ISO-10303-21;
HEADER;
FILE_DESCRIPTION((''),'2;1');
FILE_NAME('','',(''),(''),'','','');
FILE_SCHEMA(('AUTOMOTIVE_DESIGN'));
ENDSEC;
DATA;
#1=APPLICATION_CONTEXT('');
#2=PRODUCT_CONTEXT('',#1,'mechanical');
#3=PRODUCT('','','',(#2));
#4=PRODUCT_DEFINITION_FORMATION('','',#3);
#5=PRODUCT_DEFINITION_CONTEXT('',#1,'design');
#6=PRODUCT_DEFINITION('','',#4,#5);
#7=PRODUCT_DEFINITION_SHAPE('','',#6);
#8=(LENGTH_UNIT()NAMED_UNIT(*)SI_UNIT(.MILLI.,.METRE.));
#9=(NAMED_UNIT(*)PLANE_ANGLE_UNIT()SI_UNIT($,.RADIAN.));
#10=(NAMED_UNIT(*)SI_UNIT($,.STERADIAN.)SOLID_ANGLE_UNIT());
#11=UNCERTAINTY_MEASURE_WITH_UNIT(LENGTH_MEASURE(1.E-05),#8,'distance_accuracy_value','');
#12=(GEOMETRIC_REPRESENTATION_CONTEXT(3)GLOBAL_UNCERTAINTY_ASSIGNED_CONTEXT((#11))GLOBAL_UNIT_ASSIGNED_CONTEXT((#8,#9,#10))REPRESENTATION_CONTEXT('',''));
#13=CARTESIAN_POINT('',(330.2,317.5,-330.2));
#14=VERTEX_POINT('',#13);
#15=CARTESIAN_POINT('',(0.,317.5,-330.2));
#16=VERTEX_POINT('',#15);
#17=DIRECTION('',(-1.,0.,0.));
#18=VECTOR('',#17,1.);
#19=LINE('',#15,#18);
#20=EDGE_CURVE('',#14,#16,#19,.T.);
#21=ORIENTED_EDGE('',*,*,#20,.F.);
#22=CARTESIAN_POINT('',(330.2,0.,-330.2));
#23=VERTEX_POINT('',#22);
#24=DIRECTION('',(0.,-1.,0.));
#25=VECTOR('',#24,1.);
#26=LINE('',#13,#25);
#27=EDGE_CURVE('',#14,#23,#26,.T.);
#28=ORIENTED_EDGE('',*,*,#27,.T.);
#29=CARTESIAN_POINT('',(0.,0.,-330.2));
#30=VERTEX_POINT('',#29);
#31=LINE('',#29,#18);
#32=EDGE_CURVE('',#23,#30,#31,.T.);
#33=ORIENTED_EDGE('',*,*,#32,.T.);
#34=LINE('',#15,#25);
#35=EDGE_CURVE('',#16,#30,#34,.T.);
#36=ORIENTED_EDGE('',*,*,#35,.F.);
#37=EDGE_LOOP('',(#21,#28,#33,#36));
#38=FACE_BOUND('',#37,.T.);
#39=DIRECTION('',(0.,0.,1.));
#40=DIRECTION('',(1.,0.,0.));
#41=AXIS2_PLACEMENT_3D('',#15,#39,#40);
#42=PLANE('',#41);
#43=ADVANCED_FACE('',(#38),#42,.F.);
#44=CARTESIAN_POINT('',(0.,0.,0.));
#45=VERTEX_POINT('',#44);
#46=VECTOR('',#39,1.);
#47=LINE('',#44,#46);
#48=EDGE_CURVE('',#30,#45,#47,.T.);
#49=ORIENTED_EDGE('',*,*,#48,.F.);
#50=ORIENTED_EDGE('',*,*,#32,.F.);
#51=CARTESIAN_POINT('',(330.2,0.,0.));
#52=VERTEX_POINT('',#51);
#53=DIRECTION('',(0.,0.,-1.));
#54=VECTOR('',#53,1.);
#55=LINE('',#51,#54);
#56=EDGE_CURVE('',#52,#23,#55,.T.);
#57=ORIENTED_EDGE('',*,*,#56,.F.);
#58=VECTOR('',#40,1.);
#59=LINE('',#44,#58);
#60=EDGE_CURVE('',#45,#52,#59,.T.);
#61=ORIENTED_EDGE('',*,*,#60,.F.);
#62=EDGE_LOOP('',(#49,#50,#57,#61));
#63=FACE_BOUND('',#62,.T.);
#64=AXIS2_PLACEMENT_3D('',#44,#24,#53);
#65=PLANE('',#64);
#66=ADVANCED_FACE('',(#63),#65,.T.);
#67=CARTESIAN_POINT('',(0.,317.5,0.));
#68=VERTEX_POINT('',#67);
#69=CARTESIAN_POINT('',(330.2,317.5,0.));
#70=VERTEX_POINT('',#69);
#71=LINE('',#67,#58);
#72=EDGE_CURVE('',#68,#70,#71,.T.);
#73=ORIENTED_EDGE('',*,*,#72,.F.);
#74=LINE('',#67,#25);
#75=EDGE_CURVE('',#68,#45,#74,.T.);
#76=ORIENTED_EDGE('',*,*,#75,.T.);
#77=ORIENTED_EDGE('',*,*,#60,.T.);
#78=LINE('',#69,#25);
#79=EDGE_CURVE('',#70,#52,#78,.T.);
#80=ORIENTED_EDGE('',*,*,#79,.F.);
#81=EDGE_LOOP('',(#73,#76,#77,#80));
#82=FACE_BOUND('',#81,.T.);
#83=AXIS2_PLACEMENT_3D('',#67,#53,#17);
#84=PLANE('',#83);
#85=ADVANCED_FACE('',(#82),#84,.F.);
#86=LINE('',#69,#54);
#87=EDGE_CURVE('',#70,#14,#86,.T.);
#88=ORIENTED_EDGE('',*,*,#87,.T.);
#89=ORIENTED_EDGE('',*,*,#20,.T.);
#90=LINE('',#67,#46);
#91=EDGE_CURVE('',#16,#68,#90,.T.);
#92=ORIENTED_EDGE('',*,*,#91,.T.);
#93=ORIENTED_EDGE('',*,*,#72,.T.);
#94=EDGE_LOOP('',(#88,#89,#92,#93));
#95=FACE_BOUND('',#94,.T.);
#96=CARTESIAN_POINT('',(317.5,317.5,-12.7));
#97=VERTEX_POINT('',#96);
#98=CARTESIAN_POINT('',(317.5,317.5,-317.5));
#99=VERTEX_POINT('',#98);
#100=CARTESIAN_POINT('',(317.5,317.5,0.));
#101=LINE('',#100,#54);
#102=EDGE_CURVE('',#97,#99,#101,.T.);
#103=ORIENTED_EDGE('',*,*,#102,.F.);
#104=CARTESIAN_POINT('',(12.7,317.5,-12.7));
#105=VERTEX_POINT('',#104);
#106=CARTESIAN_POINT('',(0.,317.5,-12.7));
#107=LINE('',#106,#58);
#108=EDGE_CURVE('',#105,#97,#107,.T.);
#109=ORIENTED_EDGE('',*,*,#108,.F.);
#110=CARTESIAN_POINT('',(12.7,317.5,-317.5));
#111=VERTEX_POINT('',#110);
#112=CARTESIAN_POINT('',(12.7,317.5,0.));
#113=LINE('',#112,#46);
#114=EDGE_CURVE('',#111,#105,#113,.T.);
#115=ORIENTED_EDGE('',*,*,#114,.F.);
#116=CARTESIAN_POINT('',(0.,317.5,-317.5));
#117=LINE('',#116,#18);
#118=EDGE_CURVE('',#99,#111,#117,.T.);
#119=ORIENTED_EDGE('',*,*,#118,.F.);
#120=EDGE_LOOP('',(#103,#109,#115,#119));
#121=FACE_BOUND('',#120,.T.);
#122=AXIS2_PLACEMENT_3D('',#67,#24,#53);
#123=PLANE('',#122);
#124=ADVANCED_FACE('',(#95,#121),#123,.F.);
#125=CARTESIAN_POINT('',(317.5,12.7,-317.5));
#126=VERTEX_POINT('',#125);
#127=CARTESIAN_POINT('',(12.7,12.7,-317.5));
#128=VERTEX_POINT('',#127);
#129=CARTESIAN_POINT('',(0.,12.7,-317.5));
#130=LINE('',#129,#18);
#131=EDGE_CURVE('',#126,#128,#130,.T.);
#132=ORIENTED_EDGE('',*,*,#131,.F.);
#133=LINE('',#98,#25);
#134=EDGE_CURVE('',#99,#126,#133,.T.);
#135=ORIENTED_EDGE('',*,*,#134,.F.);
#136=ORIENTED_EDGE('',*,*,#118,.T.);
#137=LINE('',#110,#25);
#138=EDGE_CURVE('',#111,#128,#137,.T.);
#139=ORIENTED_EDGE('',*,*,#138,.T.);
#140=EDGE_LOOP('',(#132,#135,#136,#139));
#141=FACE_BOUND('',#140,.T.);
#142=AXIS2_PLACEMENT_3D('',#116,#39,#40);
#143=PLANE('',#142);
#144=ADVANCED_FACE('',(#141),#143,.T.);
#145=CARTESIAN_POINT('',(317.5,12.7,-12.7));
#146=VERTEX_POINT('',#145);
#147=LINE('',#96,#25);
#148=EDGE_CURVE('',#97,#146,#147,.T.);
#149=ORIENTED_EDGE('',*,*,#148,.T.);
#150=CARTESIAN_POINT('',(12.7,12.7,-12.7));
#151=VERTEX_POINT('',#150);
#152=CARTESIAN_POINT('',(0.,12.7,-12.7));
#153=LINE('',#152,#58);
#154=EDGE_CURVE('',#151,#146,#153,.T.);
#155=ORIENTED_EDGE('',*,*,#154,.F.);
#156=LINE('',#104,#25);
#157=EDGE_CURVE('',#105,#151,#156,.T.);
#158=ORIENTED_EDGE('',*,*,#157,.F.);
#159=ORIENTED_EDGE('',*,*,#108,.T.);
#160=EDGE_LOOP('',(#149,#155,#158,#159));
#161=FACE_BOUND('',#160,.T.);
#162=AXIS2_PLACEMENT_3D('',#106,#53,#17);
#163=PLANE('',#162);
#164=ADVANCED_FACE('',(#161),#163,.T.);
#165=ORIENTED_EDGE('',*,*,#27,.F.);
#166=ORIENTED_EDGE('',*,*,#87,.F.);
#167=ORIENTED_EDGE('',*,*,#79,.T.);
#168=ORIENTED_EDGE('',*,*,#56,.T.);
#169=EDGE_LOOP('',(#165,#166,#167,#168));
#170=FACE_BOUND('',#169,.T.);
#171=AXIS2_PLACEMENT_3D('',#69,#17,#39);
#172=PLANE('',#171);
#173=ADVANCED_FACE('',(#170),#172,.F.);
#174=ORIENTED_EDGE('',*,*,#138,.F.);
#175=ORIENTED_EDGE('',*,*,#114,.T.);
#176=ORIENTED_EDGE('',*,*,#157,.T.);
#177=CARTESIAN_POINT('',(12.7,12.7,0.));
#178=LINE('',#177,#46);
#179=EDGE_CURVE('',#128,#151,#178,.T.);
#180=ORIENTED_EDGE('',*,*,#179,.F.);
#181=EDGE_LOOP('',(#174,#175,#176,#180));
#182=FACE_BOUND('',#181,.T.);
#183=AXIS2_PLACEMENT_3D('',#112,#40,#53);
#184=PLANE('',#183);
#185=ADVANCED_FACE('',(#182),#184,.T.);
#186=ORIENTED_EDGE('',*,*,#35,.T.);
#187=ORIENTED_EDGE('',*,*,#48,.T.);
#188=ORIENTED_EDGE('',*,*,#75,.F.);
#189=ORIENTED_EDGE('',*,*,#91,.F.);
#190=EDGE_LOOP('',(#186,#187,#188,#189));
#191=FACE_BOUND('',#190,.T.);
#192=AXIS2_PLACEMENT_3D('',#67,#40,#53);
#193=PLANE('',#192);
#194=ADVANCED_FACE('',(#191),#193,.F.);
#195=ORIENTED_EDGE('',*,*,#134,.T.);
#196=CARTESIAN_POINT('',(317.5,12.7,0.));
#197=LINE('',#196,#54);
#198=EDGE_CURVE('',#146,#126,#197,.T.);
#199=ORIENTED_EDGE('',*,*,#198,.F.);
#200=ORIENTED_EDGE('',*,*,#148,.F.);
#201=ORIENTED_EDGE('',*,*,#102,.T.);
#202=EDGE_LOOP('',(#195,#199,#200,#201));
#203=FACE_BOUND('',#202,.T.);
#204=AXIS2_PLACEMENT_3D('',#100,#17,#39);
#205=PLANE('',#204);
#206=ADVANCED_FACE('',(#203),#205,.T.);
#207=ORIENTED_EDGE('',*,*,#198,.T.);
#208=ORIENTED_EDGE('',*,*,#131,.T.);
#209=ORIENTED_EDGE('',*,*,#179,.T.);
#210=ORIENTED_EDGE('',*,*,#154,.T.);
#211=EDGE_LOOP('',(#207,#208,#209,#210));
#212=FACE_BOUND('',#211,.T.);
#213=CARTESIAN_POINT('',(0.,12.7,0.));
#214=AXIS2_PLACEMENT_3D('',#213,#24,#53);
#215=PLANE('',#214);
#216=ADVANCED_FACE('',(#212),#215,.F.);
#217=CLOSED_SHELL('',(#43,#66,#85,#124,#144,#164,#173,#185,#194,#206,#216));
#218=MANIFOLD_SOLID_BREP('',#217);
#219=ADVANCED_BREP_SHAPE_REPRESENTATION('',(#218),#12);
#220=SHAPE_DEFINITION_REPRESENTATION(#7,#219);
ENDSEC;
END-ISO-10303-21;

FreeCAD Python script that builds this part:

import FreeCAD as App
import Part
import Sketcher

V = App.Vector
Q = App.Units.Quantity


def faces_at(feature, points):
    """Names of the faces that lie closest to the given points."""
    faces = feature.Shape.Faces
    near = lambda p: min(range(len(faces)), key=lambda i: faces[i].distToShape(Part.Vertex(*p))[0])
    return sorted({f"Face{near(p) + 1}" for p in points})


def add_polygon(sketch, points):
    """Adds a closed chain of lines whose ends are joined by coincident constraints."""
    first, n = sketch.GeometryCount, len(points)
    for a, b in zip(points, points[1:] + points[:1]):
        sketch.addGeometry(Part.LineSegment(App.Vector(*a, 0), App.Vector(*b, 0)), False)
    for i in range(n):
        sketch.addConstraint(Sketcher.Constraint("Coincident", first + i, 2, first + (i + 1) % n, 1))

doc = App.newDocument("Part")
body = doc.addObject("PartDesign::Body", "Body")

# Sketch on XZ plane
sketch1 = body.newObject("Sketcher::SketchObject", "Sketch")
sketch1.AttachmentSupport = (doc.getObject("XZ_Plane"), [""])
sketch1.MapMode = "FlatFace"
add_polygon(sketch1, [(0, -330), (0, 0), (330, 0), (330, -330)])  # lines 0-3
sketch1.addConstraint([
    Sketcher.Constraint("Vertical", 0),
    Sketcher.Constraint("Horizontal", 1),
    Sketcher.Constraint("Vertical", 2),
    Sketcher.Constraint("Horizontal", 3),
    Sketcher.Constraint("Coincident", 0, 2, -1, 1),
    Sketcher.Constraint("Equal", 3, 0),
    Sketcher.Constraint("DistanceX", 1, 1, 1, 2, Q("13 in")),
])
pad1 = body.newObject("PartDesign::Pad", "Pad")
pad1.Profile = sketch1
pad1.Length = Q("12.5 in")
pad1.Reversed = True
doc.recompute()

thickness = body.newObject("PartDesign::Thickness", "Thickness")
thickness.Base = (pad1, faces_at(pad1, [(165.1, 317.5, -165.1)]))
thickness.Value = Q("0.5 in")
thickness.Reversed = True
thickness.Join = "Intersection"

doc.recompute()
